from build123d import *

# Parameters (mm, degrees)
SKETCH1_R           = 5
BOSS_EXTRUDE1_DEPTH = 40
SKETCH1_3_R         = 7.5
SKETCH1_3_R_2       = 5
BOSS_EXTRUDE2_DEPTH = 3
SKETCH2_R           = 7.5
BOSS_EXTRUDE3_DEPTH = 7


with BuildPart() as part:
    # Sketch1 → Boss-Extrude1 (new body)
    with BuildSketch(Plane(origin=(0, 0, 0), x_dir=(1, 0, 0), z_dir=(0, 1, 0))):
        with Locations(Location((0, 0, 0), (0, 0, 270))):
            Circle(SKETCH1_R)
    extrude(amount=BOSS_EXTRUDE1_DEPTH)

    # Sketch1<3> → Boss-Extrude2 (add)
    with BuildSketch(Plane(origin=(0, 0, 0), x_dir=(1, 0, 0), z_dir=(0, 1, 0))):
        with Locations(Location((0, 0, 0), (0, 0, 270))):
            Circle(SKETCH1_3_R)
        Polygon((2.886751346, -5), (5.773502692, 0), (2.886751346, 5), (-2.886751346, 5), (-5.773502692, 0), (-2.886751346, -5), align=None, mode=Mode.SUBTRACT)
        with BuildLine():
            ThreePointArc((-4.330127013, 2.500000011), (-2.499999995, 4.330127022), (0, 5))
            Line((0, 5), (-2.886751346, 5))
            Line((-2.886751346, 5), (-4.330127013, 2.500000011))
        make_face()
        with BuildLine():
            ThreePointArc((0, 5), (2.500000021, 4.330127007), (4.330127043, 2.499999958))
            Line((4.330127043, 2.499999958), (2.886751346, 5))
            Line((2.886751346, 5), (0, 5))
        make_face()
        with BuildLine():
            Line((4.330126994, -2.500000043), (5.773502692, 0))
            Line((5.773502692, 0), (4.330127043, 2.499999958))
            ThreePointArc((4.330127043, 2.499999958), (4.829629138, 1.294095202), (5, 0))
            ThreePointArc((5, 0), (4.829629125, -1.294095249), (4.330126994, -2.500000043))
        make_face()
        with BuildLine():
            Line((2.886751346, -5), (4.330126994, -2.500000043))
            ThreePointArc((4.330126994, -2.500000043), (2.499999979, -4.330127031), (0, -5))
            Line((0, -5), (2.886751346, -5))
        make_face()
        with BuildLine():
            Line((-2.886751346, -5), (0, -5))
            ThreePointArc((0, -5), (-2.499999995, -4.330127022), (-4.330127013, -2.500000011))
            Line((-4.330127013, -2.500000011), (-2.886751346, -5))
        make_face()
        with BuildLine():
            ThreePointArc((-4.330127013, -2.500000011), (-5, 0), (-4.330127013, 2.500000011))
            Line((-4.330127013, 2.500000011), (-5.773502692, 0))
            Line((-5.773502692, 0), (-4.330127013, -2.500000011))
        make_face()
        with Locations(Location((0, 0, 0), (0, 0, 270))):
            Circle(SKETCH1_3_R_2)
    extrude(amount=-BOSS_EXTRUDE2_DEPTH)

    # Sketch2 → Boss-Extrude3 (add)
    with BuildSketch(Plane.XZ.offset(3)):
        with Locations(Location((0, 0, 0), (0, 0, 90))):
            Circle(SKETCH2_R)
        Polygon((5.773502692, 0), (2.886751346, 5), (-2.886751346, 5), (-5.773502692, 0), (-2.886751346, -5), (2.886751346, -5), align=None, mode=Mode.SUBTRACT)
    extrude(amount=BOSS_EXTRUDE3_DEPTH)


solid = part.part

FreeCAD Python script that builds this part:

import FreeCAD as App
import Part
import Sketcher
Q = App.Units.Quantity


def add_polygon(sketch, points):
    """Adds a closed chain of lines whose ends are joined by coincident constraints."""
    first, n = sketch.GeometryCount, len(points)
    for a, b in zip(points, points[1:] + points[:1]):
        sketch.addGeometry(Part.LineSegment(App.Vector(*a, 0), App.Vector(*b, 0)), False)
    for i in range(n):
        sketch.addConstraint(Sketcher.Constraint("Coincident", first + i, 2, first + (i + 1) % n, 1))

doc = App.newDocument("Part")
body = doc.addObject("PartDesign::Body", "Body")

sketch1 = body.newObject("Sketcher::SketchObject", "Sketch")
sketch1.AttachmentSupport = (doc.getObject("XZ_Plane"), [""])
sketch1.MapMode = "FlatFace"
sketch1.addGeometry(Part.Circle(App.Vector(0, 0, 0), App.Vector(0, 0, 1), 5), False)
sketch1.addConstraint([
    Sketcher.Constraint("Coincident", 0, 3, -1, 1),
    Sketcher.Constraint("Diameter", 0, 10.0),
])
pad1 = body.newObject("PartDesign::Pad", "Pad")
pad1.Profile = sketch1
pad1.Length = 40
pad1.Reversed = True

sketch2 = body.newObject("Sketcher::SketchObject", "Sketch001")
sketch2.AttachmentSupport = (doc.getObject("XZ_Plane"), [""])
sketch2.MapMode = "FlatFace"
sketch2.addGeometry(Part.Circle(App.Vector(0, 0, 0), App.Vector(0, 0, 1), 8), False)
sketch2.addConstraint([
    Sketcher.Constraint("Coincident", 0, 3, -1, 1),
    Sketcher.Constraint("Diameter", 0, 15.0),
])
pad2 = body.newObject("PartDesign::Pad", "Pad001")
pad2.Profile = sketch2
pad2.Length = 3

sketch3 = body.newObject("Sketcher::SketchObject", "Sketch002")
sketch3.AttachmentSupport = (doc.getObject("XZ_Plane"), [""])
sketch3.MapMode = "FlatFace"
sketch3.AttachmentOffset = App.Placement(App.Vector(0, 0, 3), App.Rotation())
sketch3.addGeometry(Part.Circle(App.Vector(0, 0, 0), App.Vector(0, 0, 1), 8), False)
add_polygon(sketch3, [(3, 5), (6, 0), (3, -5), (-3, -5), (-6, 0), (-3, 5)])
sketch3.addConstraint([
    Sketcher.Constraint("Horizontal", 3),
    Sketcher.Constraint("Horizontal", 6),
    Sketcher.Constraint("Coincident", 0, 3, -1, 1),
    Sketcher.Constraint("Symmetric", 1, 2, 4, 2, -1, 1),
    Sketcher.Constraint("Symmetric", 2, 2, 5, 2, -1, 1),
    Sketcher.Constraint("PointOnObject", 1, 2, -1),
    Sketcher.Constraint("Parallel", 1, 4),
    Sketcher.Constraint("Vertical", 3, 2, 5, 2),
    Sketcher.Constraint("Diameter", 0, 15.0),
    Sketcher.Constraint("Angle", 1, Q("-60 deg")),
    Sketcher.Constraint("DistanceY", 2, 2, -1, 1, 5.0),
    Sketcher.Constraint("DistanceX", 3, 2, 3, 1, 5.773503),
])
pad3 = body.newObject("PartDesign::Pad", "Pad002")
pad3.Profile = sketch3
pad3.Length = 7

doc.recompute()
